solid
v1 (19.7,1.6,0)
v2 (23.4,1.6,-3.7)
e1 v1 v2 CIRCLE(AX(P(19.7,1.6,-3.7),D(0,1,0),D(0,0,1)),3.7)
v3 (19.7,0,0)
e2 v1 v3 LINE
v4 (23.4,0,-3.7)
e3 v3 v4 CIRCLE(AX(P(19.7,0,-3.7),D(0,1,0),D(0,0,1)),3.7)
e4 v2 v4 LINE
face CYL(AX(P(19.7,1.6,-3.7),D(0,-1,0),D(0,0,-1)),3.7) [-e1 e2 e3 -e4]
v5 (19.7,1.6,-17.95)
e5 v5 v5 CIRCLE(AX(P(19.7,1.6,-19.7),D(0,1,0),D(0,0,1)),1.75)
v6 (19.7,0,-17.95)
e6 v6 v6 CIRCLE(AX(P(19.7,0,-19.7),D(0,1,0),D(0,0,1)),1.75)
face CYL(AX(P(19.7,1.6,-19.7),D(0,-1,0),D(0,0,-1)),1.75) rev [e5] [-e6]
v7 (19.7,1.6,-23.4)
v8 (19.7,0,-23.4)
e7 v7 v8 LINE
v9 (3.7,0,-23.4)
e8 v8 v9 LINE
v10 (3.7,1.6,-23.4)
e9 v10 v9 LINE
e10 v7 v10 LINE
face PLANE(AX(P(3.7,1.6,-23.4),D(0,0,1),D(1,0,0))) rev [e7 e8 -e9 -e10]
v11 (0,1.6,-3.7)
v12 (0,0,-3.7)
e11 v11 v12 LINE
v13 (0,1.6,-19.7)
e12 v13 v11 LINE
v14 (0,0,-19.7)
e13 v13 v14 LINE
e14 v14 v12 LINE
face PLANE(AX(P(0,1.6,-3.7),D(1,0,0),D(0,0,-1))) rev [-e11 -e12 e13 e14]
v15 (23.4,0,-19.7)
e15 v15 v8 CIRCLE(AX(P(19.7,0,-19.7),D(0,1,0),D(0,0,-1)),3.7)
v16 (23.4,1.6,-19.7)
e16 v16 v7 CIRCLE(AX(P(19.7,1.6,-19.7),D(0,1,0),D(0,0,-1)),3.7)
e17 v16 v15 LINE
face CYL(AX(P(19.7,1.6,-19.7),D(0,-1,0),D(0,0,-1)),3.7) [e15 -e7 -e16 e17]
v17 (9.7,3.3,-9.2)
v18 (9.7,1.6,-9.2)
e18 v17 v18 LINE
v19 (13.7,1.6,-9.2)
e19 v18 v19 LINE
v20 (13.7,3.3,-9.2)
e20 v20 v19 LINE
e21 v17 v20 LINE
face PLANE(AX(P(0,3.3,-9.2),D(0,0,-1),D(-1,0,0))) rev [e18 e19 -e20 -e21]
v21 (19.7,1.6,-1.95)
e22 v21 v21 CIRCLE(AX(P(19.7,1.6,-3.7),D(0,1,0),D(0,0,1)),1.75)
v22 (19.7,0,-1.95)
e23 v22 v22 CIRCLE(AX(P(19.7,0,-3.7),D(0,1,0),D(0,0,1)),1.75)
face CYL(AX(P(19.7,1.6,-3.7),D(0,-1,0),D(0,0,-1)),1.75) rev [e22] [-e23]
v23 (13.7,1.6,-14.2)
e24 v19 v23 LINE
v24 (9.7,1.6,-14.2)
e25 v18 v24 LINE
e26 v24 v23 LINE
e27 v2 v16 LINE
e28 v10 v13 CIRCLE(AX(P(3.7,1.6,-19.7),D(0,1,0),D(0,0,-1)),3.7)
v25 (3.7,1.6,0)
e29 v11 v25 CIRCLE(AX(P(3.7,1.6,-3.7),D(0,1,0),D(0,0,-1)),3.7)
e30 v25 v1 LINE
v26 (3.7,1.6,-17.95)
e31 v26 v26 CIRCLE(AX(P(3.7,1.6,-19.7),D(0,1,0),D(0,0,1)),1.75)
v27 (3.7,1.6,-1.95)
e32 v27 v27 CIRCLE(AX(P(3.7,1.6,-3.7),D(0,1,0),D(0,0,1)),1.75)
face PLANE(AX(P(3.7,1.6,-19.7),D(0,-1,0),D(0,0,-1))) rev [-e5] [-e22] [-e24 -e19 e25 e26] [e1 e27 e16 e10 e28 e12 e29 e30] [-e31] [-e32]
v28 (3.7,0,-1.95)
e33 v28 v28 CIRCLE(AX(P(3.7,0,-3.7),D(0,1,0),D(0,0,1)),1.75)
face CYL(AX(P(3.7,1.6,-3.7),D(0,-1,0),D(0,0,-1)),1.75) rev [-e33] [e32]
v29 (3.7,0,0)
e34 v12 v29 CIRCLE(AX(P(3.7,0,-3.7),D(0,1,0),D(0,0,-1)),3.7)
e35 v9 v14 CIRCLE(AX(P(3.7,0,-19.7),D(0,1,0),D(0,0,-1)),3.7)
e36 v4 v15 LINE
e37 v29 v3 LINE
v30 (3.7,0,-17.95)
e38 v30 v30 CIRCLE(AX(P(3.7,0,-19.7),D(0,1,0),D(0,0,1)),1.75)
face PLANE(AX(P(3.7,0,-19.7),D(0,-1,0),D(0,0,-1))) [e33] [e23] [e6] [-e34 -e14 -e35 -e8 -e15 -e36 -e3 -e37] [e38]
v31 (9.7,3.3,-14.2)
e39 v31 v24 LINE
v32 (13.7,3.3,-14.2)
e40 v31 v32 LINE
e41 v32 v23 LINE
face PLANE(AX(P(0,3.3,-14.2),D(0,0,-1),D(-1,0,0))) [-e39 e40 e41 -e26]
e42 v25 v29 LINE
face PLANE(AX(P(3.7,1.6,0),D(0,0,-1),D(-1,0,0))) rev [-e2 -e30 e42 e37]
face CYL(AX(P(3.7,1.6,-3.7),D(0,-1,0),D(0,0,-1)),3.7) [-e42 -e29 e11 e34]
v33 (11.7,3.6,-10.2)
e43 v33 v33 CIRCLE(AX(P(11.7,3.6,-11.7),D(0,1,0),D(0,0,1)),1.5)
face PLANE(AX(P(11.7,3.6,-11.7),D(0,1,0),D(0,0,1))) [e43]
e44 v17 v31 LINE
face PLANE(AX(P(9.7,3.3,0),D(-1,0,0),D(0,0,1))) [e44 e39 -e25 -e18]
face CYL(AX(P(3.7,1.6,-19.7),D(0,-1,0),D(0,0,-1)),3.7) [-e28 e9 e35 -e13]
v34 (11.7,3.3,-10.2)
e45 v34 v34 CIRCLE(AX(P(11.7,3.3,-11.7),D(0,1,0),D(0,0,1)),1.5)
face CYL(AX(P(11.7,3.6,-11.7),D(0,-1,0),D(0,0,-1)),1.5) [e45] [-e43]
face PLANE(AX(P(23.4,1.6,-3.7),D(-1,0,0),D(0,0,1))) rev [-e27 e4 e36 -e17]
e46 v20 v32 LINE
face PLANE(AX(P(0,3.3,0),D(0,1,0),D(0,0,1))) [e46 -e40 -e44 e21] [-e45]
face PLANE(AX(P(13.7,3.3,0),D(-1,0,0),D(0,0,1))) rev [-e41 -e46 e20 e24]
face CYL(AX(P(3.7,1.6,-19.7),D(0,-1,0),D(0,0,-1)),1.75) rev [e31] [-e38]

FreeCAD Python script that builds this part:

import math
import FreeCAD as App
import Part
import Sketcher
from FreeCAD import Vector
Q = App.Units.Quantity

doc = App.newDocument("Part")
params = doc.addObject("Spreadsheet::Sheet", "Params")
for row, (alias, value) in enumerate([
    ("sketch1_diameter", "3.5 mm"),
    ("sketch1_radius", "3.7 mm"),
    ("sketch1_width", "16 mm"),
    ("pad1_length", "1.6 mm"),
    ("sketch2_width", "4 mm"),
    ("sketch2_height", "5 mm"),
    ("pad2_length", "1.7 mm"),
    ("sketch3_diameter", "3 mm"),
    ("pad3_length", "0.3 mm"),
], start=1):
    params.set(f"A{row}", alias)
    params.set(f"B{row}", "=" + value)
    params.setAlias(f"B{row}", alias)

body = doc.addObject("PartDesign::Body", "Body")

# Sketch on XZ plane
sketch1 = body.newObject("Sketcher::SketchObject", "Sketch")
sketch1.AttachmentSupport = (doc.getObject("XZ_Plane"), [""])
sketch1.MapMode = "FlatFace"
sketch1.addGeometry([
    Part.LineSegment(Vector(3.7, 0, 0), Vector(19.7, 0, 0)),  # 0
    Part.ArcOfCircle(Part.Circle(Vector(19.7, -3.7, 0), Vector(0, 0, 1), 3.7), math.radians(0), math.radians(90)),  # 1
    Part.LineSegment(Vector(23.4, -3.7, 0), Vector(23.4, -19.7, 0)),  # 2
    Part.ArcOfCircle(Part.Circle(Vector(19.7, -19.7, 0), Vector(0, 0, 1), 3.7), math.radians(-90), math.radians(0)),  # 3
    Part.LineSegment(Vector(19.7, -23.4, 0), Vector(3.7, -23.4, 0)),  # 4
    Part.ArcOfCircle(Part.Circle(Vector(3.7, -19.7, 0), Vector(0, 0, 1), 3.7), math.radians(-180), math.radians(-90)),  # 5
    Part.LineSegment(Vector(0, -19.7, 0), Vector(0, -3.7, 0)),  # 6
    Part.ArcOfCircle(Part.Circle(Vector(3.7, -3.7, 0), Vector(0, 0, 1), 3.7), math.radians(90), math.radians(180)),  # 7
    Part.Circle(Vector(3.7, -3.7, 0), Vector(0, 0, 1), 1.8),  # 8
    Part.Circle(Vector(19.7, -3.7, 0), Vector(0, 0, 1), 1.8),  # 9
    Part.Circle(Vector(3.7, -19.7, 0), Vector(0, 0, 1), 1.8),  # 10
    Part.Circle(Vector(19.7, -19.7, 0), Vector(0, 0, 1), 1.8),  # 11
], False)
sketch1.addConstraint([
    Sketcher.Constraint("Tangent", 0, 2, 1, 2),
    Sketcher.Constraint("Tangent", 1, 1, 2, 1),
    Sketcher.Constraint("Tangent", 2, 2, 3, 2),
    Sketcher.Constraint("Tangent", 3, 1, 4, 1),
    Sketcher.Constraint("Tangent", 4, 2, 5, 2),
    Sketcher.Constraint("Tangent", 5, 1, 6, 1),
    Sketcher.Constraint("Tangent", 6, 2, 7, 2),
    Sketcher.Constraint("Tangent", 7, 1, 0, 1),
    Sketcher.Constraint("Horizontal", 0),
    Sketcher.Constraint("Vertical", 2),
    Sketcher.Constraint("Horizontal", 4),
    Sketcher.Constraint("Vertical", 6),
    Sketcher.Constraint("Coincident", 8, 3, 7, 3),
    Sketcher.Constraint("Coincident", 9, 3, 1, 3),
    Sketcher.Constraint("Coincident", 10, 3, 5, 3),
    Sketcher.Constraint("Coincident", 11, 3, 3, 3),
    Sketcher.Constraint("Equal", 1, 3),
    Sketcher.Constraint("Equal", 3, 5),
    Sketcher.Constraint("Equal", 5, 7),
    Sketcher.Constraint("Equal", 8, 9),
    Sketcher.Constraint("Equal", 9, 10),
    Sketcher.Constraint("Equal", 10, 11),
    Sketcher.Constraint("PointOnObject", 0, 2, -1),
    Sketcher.Constraint("PointOnObject", 5, 1, -2),
    Sketcher.Constraint("Equal", 4, 2),
    Sketcher.Constraint("Diameter", 8, Q("3.5 mm")),
    Sketcher.Constraint("Radius", 1, Q("3.7 mm")),
    Sketcher.Constraint("DistanceX", 0, 1, 0, 2, Q("16 mm")),
])
sketch1.setExpression("Constraints[25]", "Params.sketch1_diameter")
sketch1.setExpression("Constraints[26]", "Params.sketch1_radius")
sketch1.setExpression("Constraints[27]", "Params.sketch1_width")
pad1 = body.newObject("PartDesign::Pad", "Pad")
pad1.Profile = sketch1
pad1.setExpression("Length", "Params.pad1_length")
pad1.Reversed = True

# Sketch on XZ plane
sketch2 = body.newObject("Sketcher::SketchObject", "Sketch001")
sketch2.AttachmentSupport = (doc.getObject("XZ_Plane"), [""])
sketch2.MapMode = "FlatFace"
sketch2.AttachmentOffset = App.Placement(Vector(0, 0, -1.6), App.Rotation())
sketch2.addGeometry([
    Part.LineSegment(Vector(13.7, -9.2, 0), Vector(13.7, -14.2, 0)),
    Part.LineSegment(Vector(13.7, -14.2, 0), Vector(9.7, -14.2, 0)),
    Part.LineSegment(Vector(9.7, -14.2, 0), Vector(9.7, -9.2, 0)),
    Part.LineSegment(Vector(9.7, -9.2, 0), Vector(13.7, -9.2, 0)),
], False)
sketch2.addConstraint([
    Sketcher.Constraint("Coincident", 0, 2, 1, 1),
    Sketcher.Constraint("Coincident", 1, 2, 2, 1),
    Sketcher.Constraint("Coincident", 2, 2, 3, 1),
    Sketcher.Constraint("Coincident", 3, 2, 0, 1),
    Sketcher.Constraint("Vertical", 0),
    Sketcher.Constraint("Horizontal", 1),
    Sketcher.Constraint("Vertical", 2),
    Sketcher.Constraint("Horizontal", 3),
    Sketcher.Constraint("DistanceX", 1, 2, 1, 1, Q("4 mm")),
    Sketcher.Constraint("DistanceY", 0, 2, 0, 1, Q("5 mm")),
    Sketcher.Constraint("DistanceX", -1, 1, 0, 2, Q("13.7 mm")),
    Sketcher.Constraint("DistanceY", 0, 2, -1, 1, Q("14.2 mm")),
])
sketch2.setExpression("Constraints[8]", "Params.sketch2_width")
sketch2.setExpression("Constraints[9]", "Params.sketch2_height")
pad2 = body.newObject("PartDesign::Pad", "Pad001")
pad2.Profile = sketch2
pad2.setExpression("Length", "Params.pad2_length")
pad2.Reversed = True

# Sketch on XZ plane
sketch3 = body.newObject("Sketcher::SketchObject", "Sketch002")
sketch3.AttachmentSupport = (doc.getObject("XZ_Plane"), [""])
sketch3.MapMode = "FlatFace"
sketch3.AttachmentOffset = App.Placement(Vector(0, 0, -3.3), App.Rotation())
sketch3.addGeometry(Part.Circle(Vector(11.7, -11.7, 0), Vector(0, 0, 1), 1.5), False)
sketch3.addConstraint([
    Sketcher.Constraint("Diameter", 0, Q("3 mm")),
    Sketcher.Constraint("DistanceX", -1, 1, 0, 3, Q("11.7 mm")),
    Sketcher.Constraint("DistanceY", 0, 3, -1, 1, Q("11.7 mm")),
])
sketch3.setExpression("Constraints[0]", "Params.sketch3_diameter")
pad3 = body.newObject("PartDesign::Pad", "Pad002")
pad3.Profile = sketch3
pad3.setExpression("Length", "Params.pad3_length")
pad3.Reversed = True

doc.recompute()
